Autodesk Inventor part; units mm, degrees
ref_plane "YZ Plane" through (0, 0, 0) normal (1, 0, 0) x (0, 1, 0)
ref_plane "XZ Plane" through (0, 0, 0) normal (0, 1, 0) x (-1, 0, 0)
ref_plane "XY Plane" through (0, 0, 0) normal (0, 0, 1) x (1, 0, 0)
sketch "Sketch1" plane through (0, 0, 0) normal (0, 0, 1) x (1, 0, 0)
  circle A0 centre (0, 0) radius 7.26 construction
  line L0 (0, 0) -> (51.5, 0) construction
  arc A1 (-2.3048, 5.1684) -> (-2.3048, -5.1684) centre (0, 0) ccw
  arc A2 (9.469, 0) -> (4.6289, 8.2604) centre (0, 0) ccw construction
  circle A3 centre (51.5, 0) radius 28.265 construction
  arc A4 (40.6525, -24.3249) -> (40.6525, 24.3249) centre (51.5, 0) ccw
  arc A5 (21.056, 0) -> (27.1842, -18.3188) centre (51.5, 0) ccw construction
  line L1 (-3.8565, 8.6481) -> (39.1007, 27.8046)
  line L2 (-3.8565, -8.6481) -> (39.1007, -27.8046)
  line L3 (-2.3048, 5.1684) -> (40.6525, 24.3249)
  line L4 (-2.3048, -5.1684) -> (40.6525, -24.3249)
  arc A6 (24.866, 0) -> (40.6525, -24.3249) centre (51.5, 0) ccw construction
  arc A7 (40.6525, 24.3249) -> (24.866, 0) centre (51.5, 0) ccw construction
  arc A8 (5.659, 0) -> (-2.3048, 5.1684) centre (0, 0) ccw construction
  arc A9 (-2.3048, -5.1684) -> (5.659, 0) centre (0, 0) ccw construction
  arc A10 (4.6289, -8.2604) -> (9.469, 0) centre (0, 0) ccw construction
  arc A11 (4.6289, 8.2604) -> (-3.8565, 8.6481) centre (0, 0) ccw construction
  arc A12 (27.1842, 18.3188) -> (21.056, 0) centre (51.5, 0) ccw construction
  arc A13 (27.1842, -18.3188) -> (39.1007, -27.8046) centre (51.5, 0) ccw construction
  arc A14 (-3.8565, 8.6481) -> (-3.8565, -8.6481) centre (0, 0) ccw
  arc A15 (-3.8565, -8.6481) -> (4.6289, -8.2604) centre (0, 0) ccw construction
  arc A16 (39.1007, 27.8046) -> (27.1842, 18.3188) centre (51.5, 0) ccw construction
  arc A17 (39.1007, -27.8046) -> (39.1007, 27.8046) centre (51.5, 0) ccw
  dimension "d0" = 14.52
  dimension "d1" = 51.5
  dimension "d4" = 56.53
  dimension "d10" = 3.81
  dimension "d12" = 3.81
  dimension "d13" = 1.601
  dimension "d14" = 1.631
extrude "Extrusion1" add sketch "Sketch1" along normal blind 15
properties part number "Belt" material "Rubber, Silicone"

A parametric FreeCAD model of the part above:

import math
import FreeCAD as App
import Part
import Sketcher

doc = App.newDocument("Part")
params = doc.addObject("Spreadsheet::Sheet", "Params")
for row, (alias, value) in enumerate([
    ("pad1_length", "15 mm"),
], start=1):
    params.set(f"A{row}", alias)
    params.set(f"B{row}", "=" + value)
    params.setAlias(f"B{row}", alias)

body = doc.addObject("PartDesign::Body", "Body")

# Sketch on XY plane
sketch1 = doc.addObject("Sketcher::SketchObject", "Sketch")
body.addObject(sketch1)
sketch1.AttachmentSupport = (doc.XY_Plane, [""])
sketch1.MapMode = "FlatFace"
sketch1.addGeometry(Part.LineSegment(App.Vector(39, 28, 0), App.Vector(-4, 9, 0)), False)
sketch1.addGeometry(Part.ArcOfCircle(Part.Circle(App.Vector(0, 0, 0), App.Vector(0, 0, 1), 9), math.radians(114), math.radians(246)), False)
sketch1.addGeometry(Part.LineSegment(App.Vector(-4, -9, 0), App.Vector(39, -28, 0)), False)
sketch1.addGeometry(Part.ArcOfCircle(Part.Circle(App.Vector(52, 0, 0), App.Vector(0, 0, 1), 30), math.radians(-114), math.radians(114)), False)
sketch1.addGeometry(Part.ArcOfCircle(Part.Circle(App.Vector(0, 0, 0), App.Vector(0, 0, 1), 6), math.radians(114), math.radians(246)), False)
sketch1.addGeometry(Part.LineSegment(App.Vector(-2, 5, 0), App.Vector(41, 24, 0)), False)
sketch1.addGeometry(Part.ArcOfCircle(Part.Circle(App.Vector(52, 0, 0), App.Vector(0, 0, 1), 27), math.radians(-114), math.radians(114)), False)
sketch1.addGeometry(Part.LineSegment(App.Vector(41, -24, 0), App.Vector(-2, -5, 0)), False)
sketch1.addConstraint(Sketcher.Constraint("Tangent", 0, 2, 1, 1))
sketch1.addConstraint(Sketcher.Constraint("Tangent", 1, 2, 2, 1))
sketch1.addConstraint(Sketcher.Constraint("Tangent", 2, 2, 3, 1))
sketch1.addConstraint(Sketcher.Constraint("Tangent", 3, 2, 0, 1))
sketch1.addConstraint(Sketcher.Constraint("Tangent", 4, 1, 5, 1))
sketch1.addConstraint(Sketcher.Constraint("Tangent", 5, 2, 6, 2))
sketch1.addConstraint(Sketcher.Constraint("Tangent", 6, 1, 7, 1))
sketch1.addConstraint(Sketcher.Constraint("Tangent", 7, 2, 4, 2))
sketch1.addConstraint(Sketcher.Constraint("Coincident", 1, 3, -1, 1))
sketch1.addConstraint(Sketcher.Constraint("Coincident", 4, 3, -1, 1))
sketch1.addConstraint(Sketcher.Constraint("Coincident", 6, 3, 3, 3))
sketch1.addConstraint(Sketcher.Constraint("PointOnObject", 3, 3, -1))
sketch1.addConstraint(Sketcher.Constraint("Parallel", 0, 5))
sketch1.addConstraint(Sketcher.Constraint("DistanceX", -1, 1, 3, 3, 51.5))
sketch1.addConstraint(Sketcher.Constraint("Radius", 1, 9.469))
sketch1.addConstraint(Sketcher.Constraint("Radius", 3, 30.444))
sketch1.addConstraint(Sketcher.Constraint("Radius", 4, 5.659))
pad1 = doc.addObject("PartDesign::Pad", "Pad")
body.addObject(pad1)
pad1.Profile = sketch1
pad1.setExpression("Length", "Params.pad1_length")

doc.recompute()
